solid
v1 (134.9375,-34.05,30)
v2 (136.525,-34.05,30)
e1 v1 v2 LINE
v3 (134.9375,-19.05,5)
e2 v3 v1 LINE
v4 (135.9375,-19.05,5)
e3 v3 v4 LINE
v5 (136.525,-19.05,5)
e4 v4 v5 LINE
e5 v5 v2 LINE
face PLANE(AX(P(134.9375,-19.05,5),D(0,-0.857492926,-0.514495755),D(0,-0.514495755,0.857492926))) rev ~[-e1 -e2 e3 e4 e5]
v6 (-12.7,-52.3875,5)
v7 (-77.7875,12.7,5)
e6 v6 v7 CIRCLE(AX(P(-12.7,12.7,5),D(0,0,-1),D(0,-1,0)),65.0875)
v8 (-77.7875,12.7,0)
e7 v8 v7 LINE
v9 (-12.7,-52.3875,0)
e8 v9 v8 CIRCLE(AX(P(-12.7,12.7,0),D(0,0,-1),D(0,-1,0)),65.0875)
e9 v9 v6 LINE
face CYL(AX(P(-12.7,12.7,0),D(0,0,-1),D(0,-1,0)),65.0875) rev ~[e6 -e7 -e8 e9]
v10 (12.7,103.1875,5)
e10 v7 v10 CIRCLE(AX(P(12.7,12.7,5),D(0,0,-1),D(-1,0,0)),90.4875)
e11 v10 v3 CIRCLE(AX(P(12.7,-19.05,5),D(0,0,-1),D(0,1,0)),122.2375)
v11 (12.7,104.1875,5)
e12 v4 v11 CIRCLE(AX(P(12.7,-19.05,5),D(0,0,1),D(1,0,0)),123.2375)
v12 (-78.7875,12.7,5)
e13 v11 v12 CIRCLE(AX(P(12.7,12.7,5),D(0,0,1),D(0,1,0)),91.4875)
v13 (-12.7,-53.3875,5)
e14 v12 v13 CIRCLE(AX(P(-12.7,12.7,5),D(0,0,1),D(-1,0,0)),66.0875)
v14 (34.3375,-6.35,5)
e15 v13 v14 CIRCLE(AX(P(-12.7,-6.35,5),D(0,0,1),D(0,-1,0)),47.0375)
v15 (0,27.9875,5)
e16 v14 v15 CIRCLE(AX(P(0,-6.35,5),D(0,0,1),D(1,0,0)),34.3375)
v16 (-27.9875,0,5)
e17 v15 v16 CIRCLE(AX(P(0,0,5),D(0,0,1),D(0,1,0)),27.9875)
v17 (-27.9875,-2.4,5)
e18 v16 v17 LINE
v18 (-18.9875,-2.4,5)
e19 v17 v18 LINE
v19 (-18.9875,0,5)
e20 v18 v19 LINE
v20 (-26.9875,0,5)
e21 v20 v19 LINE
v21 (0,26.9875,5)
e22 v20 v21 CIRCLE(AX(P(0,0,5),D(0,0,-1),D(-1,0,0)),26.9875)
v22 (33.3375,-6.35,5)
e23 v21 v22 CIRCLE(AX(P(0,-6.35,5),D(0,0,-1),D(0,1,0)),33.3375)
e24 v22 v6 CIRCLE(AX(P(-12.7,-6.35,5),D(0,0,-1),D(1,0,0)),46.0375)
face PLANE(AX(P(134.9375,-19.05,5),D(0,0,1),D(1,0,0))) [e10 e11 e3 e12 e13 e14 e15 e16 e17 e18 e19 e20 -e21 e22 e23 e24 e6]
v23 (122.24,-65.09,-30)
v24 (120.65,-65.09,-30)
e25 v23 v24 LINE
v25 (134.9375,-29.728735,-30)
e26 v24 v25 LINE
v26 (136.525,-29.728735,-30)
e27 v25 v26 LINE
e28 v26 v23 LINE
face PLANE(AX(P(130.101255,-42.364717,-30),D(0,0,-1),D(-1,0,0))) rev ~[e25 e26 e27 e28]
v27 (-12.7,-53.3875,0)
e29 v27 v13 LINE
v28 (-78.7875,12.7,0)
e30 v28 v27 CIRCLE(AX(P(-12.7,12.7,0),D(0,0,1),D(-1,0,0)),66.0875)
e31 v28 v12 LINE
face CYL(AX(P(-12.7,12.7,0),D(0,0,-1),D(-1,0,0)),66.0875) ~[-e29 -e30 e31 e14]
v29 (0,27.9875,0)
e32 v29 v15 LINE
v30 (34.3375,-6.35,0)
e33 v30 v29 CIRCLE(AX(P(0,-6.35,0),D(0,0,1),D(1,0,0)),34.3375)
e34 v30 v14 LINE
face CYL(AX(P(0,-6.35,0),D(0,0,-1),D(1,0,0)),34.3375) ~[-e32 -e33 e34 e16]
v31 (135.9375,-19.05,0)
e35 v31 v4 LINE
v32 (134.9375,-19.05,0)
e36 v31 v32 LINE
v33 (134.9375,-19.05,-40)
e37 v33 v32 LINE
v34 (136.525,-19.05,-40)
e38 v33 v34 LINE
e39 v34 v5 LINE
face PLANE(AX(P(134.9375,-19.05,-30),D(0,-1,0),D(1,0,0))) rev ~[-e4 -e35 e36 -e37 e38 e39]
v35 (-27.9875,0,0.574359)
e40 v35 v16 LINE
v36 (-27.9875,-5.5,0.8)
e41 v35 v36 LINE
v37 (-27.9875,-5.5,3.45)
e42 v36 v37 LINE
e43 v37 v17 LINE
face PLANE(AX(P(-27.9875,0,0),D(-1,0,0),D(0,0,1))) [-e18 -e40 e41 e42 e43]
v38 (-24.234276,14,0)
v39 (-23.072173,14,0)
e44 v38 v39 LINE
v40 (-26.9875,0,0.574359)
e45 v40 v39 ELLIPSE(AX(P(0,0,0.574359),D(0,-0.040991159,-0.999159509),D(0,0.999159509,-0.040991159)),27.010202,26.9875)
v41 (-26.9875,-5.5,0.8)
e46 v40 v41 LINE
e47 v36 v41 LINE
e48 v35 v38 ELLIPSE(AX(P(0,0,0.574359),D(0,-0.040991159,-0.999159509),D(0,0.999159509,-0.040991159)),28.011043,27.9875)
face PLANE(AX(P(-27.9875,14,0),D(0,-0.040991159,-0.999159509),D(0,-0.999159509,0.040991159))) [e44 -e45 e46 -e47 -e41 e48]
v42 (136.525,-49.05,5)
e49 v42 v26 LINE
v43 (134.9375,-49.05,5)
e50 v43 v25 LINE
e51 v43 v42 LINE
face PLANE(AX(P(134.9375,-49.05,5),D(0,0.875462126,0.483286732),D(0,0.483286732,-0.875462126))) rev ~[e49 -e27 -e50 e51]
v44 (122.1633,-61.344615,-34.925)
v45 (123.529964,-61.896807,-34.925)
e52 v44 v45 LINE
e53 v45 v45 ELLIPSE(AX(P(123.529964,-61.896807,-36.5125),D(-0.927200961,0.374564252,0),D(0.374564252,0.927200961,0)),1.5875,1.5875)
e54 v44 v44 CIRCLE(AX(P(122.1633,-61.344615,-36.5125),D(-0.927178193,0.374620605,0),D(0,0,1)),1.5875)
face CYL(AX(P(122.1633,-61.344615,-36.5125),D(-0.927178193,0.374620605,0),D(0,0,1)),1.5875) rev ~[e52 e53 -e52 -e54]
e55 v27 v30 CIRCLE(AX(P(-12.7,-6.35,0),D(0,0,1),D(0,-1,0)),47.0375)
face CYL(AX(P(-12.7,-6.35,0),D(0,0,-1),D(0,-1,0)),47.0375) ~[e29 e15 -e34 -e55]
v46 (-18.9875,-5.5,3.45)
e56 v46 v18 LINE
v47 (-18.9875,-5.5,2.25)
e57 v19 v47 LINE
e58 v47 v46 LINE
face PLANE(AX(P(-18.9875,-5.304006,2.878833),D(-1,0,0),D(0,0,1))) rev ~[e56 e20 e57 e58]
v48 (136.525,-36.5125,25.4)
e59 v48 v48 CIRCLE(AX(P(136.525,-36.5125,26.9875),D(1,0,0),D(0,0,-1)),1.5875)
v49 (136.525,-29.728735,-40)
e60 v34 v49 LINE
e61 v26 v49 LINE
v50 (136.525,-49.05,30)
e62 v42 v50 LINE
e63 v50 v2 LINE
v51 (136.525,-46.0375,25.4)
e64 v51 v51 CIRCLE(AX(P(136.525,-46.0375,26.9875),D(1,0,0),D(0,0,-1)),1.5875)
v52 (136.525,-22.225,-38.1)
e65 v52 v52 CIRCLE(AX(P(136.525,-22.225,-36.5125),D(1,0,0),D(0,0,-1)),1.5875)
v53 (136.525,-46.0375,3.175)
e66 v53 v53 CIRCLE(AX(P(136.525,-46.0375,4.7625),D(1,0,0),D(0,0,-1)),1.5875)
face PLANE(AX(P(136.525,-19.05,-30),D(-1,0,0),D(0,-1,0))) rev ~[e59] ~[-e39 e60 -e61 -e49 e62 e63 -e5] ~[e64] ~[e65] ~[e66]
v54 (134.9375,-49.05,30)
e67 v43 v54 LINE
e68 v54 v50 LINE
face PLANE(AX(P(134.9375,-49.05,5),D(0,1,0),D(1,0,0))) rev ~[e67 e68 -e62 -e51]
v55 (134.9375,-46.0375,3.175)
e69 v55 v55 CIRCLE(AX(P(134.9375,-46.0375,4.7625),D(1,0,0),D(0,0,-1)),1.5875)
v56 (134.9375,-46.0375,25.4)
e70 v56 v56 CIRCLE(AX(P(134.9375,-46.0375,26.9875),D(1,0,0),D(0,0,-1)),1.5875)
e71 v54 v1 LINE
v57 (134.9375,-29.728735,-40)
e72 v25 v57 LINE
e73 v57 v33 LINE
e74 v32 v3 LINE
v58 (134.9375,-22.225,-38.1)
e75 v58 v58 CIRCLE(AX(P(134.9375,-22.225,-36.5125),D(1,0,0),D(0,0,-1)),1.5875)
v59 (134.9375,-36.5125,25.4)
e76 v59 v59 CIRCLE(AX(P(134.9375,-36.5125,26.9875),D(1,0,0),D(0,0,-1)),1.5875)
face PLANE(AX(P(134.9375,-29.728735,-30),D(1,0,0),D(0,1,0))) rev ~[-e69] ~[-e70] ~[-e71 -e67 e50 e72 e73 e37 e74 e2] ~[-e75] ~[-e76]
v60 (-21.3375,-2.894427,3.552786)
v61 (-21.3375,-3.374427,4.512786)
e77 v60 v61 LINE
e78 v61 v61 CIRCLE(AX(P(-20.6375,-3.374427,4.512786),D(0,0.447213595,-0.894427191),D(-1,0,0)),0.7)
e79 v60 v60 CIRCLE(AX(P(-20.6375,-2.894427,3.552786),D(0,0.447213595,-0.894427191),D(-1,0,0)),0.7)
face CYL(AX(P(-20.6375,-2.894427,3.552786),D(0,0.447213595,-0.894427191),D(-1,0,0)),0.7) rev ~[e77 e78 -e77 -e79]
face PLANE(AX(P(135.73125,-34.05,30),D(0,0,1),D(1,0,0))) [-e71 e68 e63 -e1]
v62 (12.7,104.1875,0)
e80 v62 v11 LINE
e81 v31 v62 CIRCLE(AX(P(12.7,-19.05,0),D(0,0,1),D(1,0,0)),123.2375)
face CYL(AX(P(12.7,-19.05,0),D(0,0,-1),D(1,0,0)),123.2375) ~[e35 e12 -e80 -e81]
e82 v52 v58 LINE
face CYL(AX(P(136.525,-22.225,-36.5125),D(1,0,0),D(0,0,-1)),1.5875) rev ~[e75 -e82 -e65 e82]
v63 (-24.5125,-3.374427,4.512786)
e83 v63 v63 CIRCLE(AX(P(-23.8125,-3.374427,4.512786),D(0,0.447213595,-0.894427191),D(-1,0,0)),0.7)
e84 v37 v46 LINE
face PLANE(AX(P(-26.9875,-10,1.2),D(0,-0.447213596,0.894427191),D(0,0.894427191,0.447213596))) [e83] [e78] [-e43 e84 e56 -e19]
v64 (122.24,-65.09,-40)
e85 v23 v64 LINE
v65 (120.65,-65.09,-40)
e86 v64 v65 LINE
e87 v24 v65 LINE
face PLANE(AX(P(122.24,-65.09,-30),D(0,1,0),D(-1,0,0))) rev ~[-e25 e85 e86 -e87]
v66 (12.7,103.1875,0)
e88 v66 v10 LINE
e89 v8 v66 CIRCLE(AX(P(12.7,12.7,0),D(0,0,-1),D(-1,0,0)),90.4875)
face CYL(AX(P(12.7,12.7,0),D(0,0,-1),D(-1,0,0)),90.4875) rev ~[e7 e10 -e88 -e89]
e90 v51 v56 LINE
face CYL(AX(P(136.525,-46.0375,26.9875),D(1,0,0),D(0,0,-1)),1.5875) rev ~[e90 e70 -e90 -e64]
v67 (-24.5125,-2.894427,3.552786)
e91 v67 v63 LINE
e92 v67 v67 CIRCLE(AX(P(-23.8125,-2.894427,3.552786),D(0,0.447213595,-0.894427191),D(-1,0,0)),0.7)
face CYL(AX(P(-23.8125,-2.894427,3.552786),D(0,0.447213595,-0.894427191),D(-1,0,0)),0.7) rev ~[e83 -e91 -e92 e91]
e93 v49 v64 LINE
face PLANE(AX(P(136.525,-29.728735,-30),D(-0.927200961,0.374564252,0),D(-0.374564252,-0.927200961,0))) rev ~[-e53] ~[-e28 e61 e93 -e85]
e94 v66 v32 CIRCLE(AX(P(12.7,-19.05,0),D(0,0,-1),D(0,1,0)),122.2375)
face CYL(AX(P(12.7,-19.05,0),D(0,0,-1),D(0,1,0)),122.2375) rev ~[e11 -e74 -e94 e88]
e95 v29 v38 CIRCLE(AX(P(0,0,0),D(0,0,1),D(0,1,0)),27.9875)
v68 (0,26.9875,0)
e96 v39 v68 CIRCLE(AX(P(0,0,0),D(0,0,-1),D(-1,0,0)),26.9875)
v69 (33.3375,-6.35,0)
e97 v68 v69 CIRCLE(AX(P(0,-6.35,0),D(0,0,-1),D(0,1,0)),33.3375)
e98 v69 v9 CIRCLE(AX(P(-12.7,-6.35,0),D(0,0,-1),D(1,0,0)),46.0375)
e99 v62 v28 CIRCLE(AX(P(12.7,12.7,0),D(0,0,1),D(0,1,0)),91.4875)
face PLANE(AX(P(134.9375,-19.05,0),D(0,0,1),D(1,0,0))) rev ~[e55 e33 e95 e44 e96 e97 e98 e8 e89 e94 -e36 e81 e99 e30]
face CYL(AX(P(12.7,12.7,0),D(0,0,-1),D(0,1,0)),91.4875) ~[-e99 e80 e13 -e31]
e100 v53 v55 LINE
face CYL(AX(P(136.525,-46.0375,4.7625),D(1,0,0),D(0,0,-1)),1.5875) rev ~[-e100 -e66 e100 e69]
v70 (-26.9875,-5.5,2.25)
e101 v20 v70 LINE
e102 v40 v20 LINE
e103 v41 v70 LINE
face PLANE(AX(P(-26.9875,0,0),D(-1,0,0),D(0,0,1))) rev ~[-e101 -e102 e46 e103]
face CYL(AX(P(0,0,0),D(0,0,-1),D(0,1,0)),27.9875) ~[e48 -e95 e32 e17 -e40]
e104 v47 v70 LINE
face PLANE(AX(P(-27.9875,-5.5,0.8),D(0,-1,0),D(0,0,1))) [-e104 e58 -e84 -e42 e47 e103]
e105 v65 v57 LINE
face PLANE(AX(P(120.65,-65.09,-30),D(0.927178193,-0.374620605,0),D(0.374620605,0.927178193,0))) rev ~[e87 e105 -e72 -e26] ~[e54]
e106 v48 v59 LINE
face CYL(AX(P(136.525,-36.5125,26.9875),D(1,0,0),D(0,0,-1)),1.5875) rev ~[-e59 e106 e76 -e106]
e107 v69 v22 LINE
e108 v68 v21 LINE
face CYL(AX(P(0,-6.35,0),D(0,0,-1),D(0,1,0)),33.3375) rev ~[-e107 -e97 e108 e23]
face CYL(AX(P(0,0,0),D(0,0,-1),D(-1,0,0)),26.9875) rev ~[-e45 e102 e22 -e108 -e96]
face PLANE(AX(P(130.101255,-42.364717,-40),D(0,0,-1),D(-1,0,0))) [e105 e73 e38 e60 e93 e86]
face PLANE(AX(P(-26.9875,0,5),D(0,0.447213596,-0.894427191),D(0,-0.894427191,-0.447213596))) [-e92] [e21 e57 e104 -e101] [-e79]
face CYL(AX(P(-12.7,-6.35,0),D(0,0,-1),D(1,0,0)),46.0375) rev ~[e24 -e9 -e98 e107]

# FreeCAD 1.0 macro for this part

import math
import FreeCAD as App
import Part
import Sketcher
from FreeCAD import Vector
Q = App.Units.Quantity

doc = App.newDocument("Part")
body = doc.addObject("PartDesign::Body", "Body")

# Sketch on XY plane
sketch1 = body.newObject("Sketcher::SketchObject", "Sketch")
sketch1.AttachmentSupport = (doc.getObject("XY_Plane"), [""])
sketch1.MapMode = "FlatFace"
sketch1.addGeometry(Part.LineSegment(Vector(-27.9875, 0, 0), Vector(-26.9875, 0, 0)), False)
sketch1.addGeometry(Part.ArcOfCircle(Part.Circle(Vector(0, 0, 0), Vector(0, 0, 1), 26.9875), math.radians(90), math.radians(180)), False)
sketch1.addGeometry(Part.ArcOfCircle(Part.Circle(Vector(0, -6.35, 0), Vector(0, 0, 1), 33.3375), math.radians(0), math.radians(90)), False)
sketch1.addGeometry(Part.ArcOfCircle(Part.Circle(Vector(-12.7, -6.35, 0), Vector(0, 0, 1), 46.0375), math.radians(-90), math.radians(0)), False)
sketch1.addGeometry(Part.ArcOfCircle(Part.Circle(Vector(-12.7, 12.7, 0), Vector(0, 0, 1), 65.0875), math.radians(-180), math.radians(-90)), False)
sketch1.addGeometry(Part.ArcOfCircle(Part.Circle(Vector(12.7, 12.7, 0), Vector(0, 0, 1), 90.4875), math.radians(90), math.radians(180)), False)
sketch1.addGeometry(Part.ArcOfCircle(Part.Circle(Vector(12.7, -19.05, 0), Vector(0, 0, 1), 122.2375), math.radians(0), math.radians(90)), False)
sketch1.addGeometry(Part.LineSegment(Vector(134.9375, -19.05, 0), Vector(135.9375, -19.05, 0)), False)
sketch1.addGeometry(Part.ArcOfCircle(Part.Circle(Vector(12.7, -19.05, 0), Vector(0, 0, 1), 123.2375), math.radians(0), math.radians(90)), False)
sketch1.addGeometry(Part.ArcOfCircle(Part.Circle(Vector(12.7, 12.7, 0), Vector(0, 0, 1), 91.4875), math.radians(90), math.radians(180)), False)
sketch1.addGeometry(Part.ArcOfCircle(Part.Circle(Vector(-12.7, 12.7, 0), Vector(0, 0, 1), 66.0875), math.radians(180), math.radians(270)), False)
sketch1.addGeometry(Part.ArcOfCircle(Part.Circle(Vector(-12.7, -6.35, 0), Vector(0, 0, 1), 47.0375), math.radians(-90), math.radians(0)), False)
sketch1.addGeometry(Part.ArcOfCircle(Part.Circle(Vector(0, -6.35, 0), Vector(0, 0, 1), 34.3375), math.radians(0), math.radians(90)), False)
sketch1.addGeometry(Part.ArcOfCircle(Part.Circle(Vector(0, 0, 0), Vector(0, 0, 1), 27.9875), math.radians(90), math.radians(180)), False)
sketch1.addConstraint(Sketcher.Constraint("Coincident", 0, 2, 1, 2))
sketch1.addConstraint(Sketcher.Constraint("Tangent", 1, 1, 2, 2))
sketch1.addConstraint(Sketcher.Constraint("Tangent", 2, 1, 3, 2))
sketch1.addConstraint(Sketcher.Constraint("Tangent", 3, 1, 4, 2))
sketch1.addConstraint(Sketcher.Constraint("Tangent", 4, 1, 5, 2))
sketch1.addConstraint(Sketcher.Constraint("Tangent", 5, 1, 6, 2))
sketch1.addConstraint(Sketcher.Constraint("Coincident", 6, 1, 7, 1))
sketch1.addConstraint(Sketcher.Constraint("Coincident", 7, 2, 8, 1))
sketch1.addConstraint(Sketcher.Constraint("Tangent", 8, 2, 9, 1))
sketch1.addConstraint(Sketcher.Constraint("Tangent", 9, 2, 10, 1))
sketch1.addConstraint(Sketcher.Constraint("Tangent", 10, 2, 11, 1))
sketch1.addConstraint(Sketcher.Constraint("Tangent", 11, 2, 12, 1))
sketch1.addConstraint(Sketcher.Constraint("Tangent", 12, 2, 13, 1))
sketch1.addConstraint(Sketcher.Constraint("Coincident", 13, 2, 0, 1))
sketch1.addConstraint(Sketcher.Constraint("Horizontal", 0))
sketch1.addConstraint(Sketcher.Constraint("Horizontal", 7))
sketch1.addConstraint(Sketcher.Constraint("Coincident", 1, 3, -1, 1))
sketch1.addConstraint(Sketcher.Constraint("Coincident", 13, 3, -1, 1))
sketch1.addConstraint(Sketcher.Constraint("Coincident", 8, 3, 6, 3))
sketch1.addConstraint(Sketcher.Constraint("Coincident", 9, 3, 5, 3))
sketch1.addConstraint(Sketcher.Constraint("Coincident", 10, 3, 4, 3))
sketch1.addConstraint(Sketcher.Constraint("Coincident", 11, 3, 3, 3))
sketch1.addConstraint(Sketcher.Constraint("Coincident", 12, 3, 2, 3))
sketch1.addConstraint(Sketcher.Constraint("Symmetric", 4, 3, 5, 3, -2))
sketch1.addConstraint(Sketcher.Constraint("PointOnObject", 2, 3, -2))
sketch1.addConstraint(Sketcher.Constraint("PointOnObject", 0, 2, -1))
sketch1.addConstraint(Sketcher.Constraint("Horizontal", 2, 3, 3, 3))
sketch1.addConstraint(Sketcher.Constraint("Horizontal", 8, 3, 6, 1))
sketch1.addConstraint(Sketcher.Constraint("Vertical", 3, 3, 4, 3))
sketch1.addConstraint(Sketcher.Constraint("Vertical", 5, 3, 6, 3))
sketch1.addConstraint(Sketcher.Constraint("DistanceX", 0, 1, 0, 2, Q("1 mm")))
sketch1.addConstraint(Sketcher.Constraint("DistanceX", 3, 3, -1, 1, Q("12.7 mm")))
sketch1.addConstraint(Sketcher.Constraint("DistanceY", -1, 1, 4, 3, Q("12.7 mm")))
sketch1.addConstraint(Sketcher.Constraint("Radius", 1, Q("26.9875 mm")))
sketch1.addConstraint(Sketcher.Constraint("Radius", 2, Q("33.3375 mm")))
sketch1.addConstraint(Sketcher.Constraint("Radius", 6, Q("122.2375 mm")))
pad1 = body.newObject("PartDesign::Pad", "Pad")
pad1.Profile = sketch1
pad1.Length = 5

# Sketch on XZ plane
sketch2 = body.newObject("Sketcher::SketchObject", "Sketch001")
sketch2.AttachmentSupport = (doc.getObject("XZ_Plane"), [""])
sketch2.MapMode = "FlatFace"
sketch2.addGeometry(Part.LineSegment(Vector(-27.9875, 5, 0), Vector(-27.9875, 0, 0)), False)
sketch2.addGeometry(Part.LineSegment(Vector(-27.9875, 0, 0), Vector(-26.9875, 0, 0)), False)
sketch2.addGeometry(Part.LineSegment(Vector(-26.9875, 0, 0), Vector(-26.9875, 5, 0)), False)
sketch2.addGeometry(Part.LineSegment(Vector(-26.9875, 5, 0), Vector(-27.9875, 5, 0)), False)
sketch2.addConstraint(Sketcher.Constraint("Coincident", 0, 2, 1, 1))
sketch2.addConstraint(Sketcher.Constraint("Coincident", 1, 2, 2, 1))
sketch2.addConstraint(Sketcher.Constraint("Coincident", 2, 2, 3, 1))
sketch2.addConstraint(Sketcher.Constraint("Coincident", 3, 2, 0, 1))
sketch2.addConstraint(Sketcher.Constraint("Vertical", 0))
sketch2.addConstraint(Sketcher.Constraint("Horizontal", 1))
sketch2.addConstraint(Sketcher.Constraint("Vertical", 2))
sketch2.addConstraint(Sketcher.Constraint("Horizontal", 3))
sketch2.addConstraint(Sketcher.Constraint("PointOnObject", 0, 2, -1))
sketch2.addConstraint(Sketcher.Constraint("DistanceX", 1, 1, 1, 2, Q("1 mm")))
sketch2.addConstraint(Sketcher.Constraint("DistanceY", 0, 2, 0, 1, Q("5 mm")))
sketch2.addConstraint(Sketcher.Constraint("DistanceX", 0, 2, -1, 1, Q("27.9875 mm")))
pad2 = body.newObject("PartDesign::Pad", "Pad001")
pad2.Profile = sketch2
pad2.Length = 10

# Sketch on YZ plane
sketch3 = body.newObject("Sketcher::SketchObject", "Sketch002")
sketch3.AttachmentSupport = (doc.getObject("YZ_Plane"), [""])
sketch3.MapMode = "FlatFace"
sketch3.AttachmentOffset = App.Placement(Vector(0, 0, -26.9875), App.Rotation())
sketch3.addGeometry(Part.LineSegment(Vector(-10, 1.2, 0), Vector(-2.4, 5, 0)), False)
sketch3.addGeometry(Part.LineSegment(Vector(-2.4, 5, 0), Vector(-10, 5, 0)), False)
sketch3.addGeometry(Part.LineSegment(Vector(-10, 5, 0), Vector(-10, 1.2, 0)), False)
sketch3.addConstraint(Sketcher.Constraint("Coincident", 0, 2, 1, 1))
sketch3.addConstraint(Sketcher.Constraint("Coincident", 1, 2, 2, 1))
sketch3.addConstraint(Sketcher.Constraint("Coincident", 2, 2, 0, 1))
sketch3.addConstraint(Sketcher.Constraint("Horizontal", 1))
sketch3.addConstraint(Sketcher.Constraint("Vertical", 2))
sketch3.addConstraint(Sketcher.Constraint("DistanceX", 1, 2, 1, 1, Q("7.6 mm")))
sketch3.addConstraint(Sketcher.Constraint("DistanceY", 2, 2, 2, 1, Q("3.8 mm")))
sketch3.addConstraint(Sketcher.Constraint("DistanceY", -1, 1, 0, 2, Q("5 mm")))
sketch3.addConstraint(Sketcher.Constraint("DistanceX", 1, 2, -1, 1, Q("10 mm")))
pocket1 = body.newObject("PartDesign::Pocket", "Pocket")
pocket1.Profile = sketch3
pocket1.Length = 5

# Sketch on YZ plane
sketch4 = body.newObject("Sketcher::SketchObject", "Sketch003")
sketch4.AttachmentSupport = (doc.getObject("YZ_Plane"), [""])
sketch4.MapMode = "FlatFace"
sketch4.AttachmentOffset = App.Placement(Vector(0, 0, -26.9875), App.Rotation())
sketch4.addGeometry(Part.LineSegment(Vector(-10, 0, 0), Vector(0, 5, 0)), False)
sketch4.addGeometry(Part.LineSegment(Vector(0, 5, 0), Vector(-2.4, 5, 0)), False)
sketch4.addGeometry(Part.LineSegment(Vector(-2.4, 5, 0), Vector(-10, 1.2, 0)), False)
sketch4.addGeometry(Part.LineSegment(Vector(-10, 1.2, 0), Vector(-10, 0, 0)), False)
sketch4.addConstraint(Sketcher.Constraint("Coincident", 0, 2, 1, 1))
sketch4.addConstraint(Sketcher.Constraint("Coincident", 1, 2, 2, 1))
sketch4.addConstraint(Sketcher.Constraint("Coincident", 2, 2, 3, 1))
sketch4.addConstraint(Sketcher.Constraint("Coincident", 3, 2, 0, 1))
sketch4.addConstraint(Sketcher.Constraint("Horizontal", 1))
sketch4.addConstraint(Sketcher.Constraint("Vertical", 3))
sketch4.addConstraint(Sketcher.Constraint("PointOnObject", 0, 2, -2))
sketch4.addConstraint(Sketcher.Constraint("PointOnObject", 3, 2, -1))
sketch4.addConstraint(Sketcher.Constraint("Parallel", 0, 2))
sketch4.addConstraint(Sketcher.Constraint("DistanceX", 1, 2, 1, 1, Q("2.4 mm")))
sketch4.addConstraint(Sketcher.Constraint("DistanceY", 3, 2, 3, 1, Q("1.2 mm")))
sketch4.addConstraint(Sketcher.Constraint("DistanceY", -1, 1, 0, 2, Q("5 mm")))
pad3 = body.newObject("PartDesign::Pad", "Pad002")
pad3.Profile = sketch4
pad3.Length = 8

# Sketch on XZ plane
sketch5 = body.newObject("Sketcher::SketchObject", "Sketch004")
sketch5.AttachmentSupport = (doc.getObject("XZ_Plane"), [""])
sketch5.MapMode = "FlatFace"
sketch5.AttachmentOffset = App.Placement(Vector(0, 0, 19.05), App.Rotation())
sketch5.addGeometry(Part.LineSegment(Vector(134.9375, 5, 0), Vector(134.9375, 0, 0)), False)
sketch5.addGeometry(Part.LineSegment(Vector(134.9375, 0, 0), Vector(136.525, 0, 0)), False)
sketch5.addGeometry(Part.LineSegment(Vector(136.525, 0, 0), Vector(136.525, 5, 0)), False)
sketch5.addGeometry(Part.LineSegment(Vector(136.525, 5, 0), Vector(134.9375, 5, 0)), False)
sketch5.addConstraint(Sketcher.Constraint("Coincident", 0, 2, 1, 1))
sketch5.addConstraint(Sketcher.Constraint("Coincident", 1, 2, 2, 1))
sketch5.addConstraint(Sketcher.Constraint("Coincident", 2, 2, 3, 1))
sketch5.addConstraint(Sketcher.Constraint("Coincident", 3, 2, 0, 1))
sketch5.addConstraint(Sketcher.Constraint("Vertical", 0))
sketch5.addConstraint(Sketcher.Constraint("Horizontal", 1))
sketch5.addConstraint(Sketcher.Constraint("Vertical", 2))
sketch5.addConstraint(Sketcher.Constraint("Horizontal", 3))
sketch5.addConstraint(Sketcher.Constraint("PointOnObject", 0, 2, -1))
sketch5.addConstraint(Sketcher.Constraint("DistanceY", 0, 2, 0, 1, Q("5 mm")))
sketch5.addConstraint(Sketcher.Constraint("DistanceX", 1, 1, 1, 2, Q("1.5875 mm")))
sketch5.addConstraint(Sketcher.Constraint("DistanceX", -1, 1, 1, 2, Q("136.525 mm")))
pad4 = body.newObject("PartDesign::Pad", "Pad003")
pad4.Profile = sketch5
pad4.Length = 30

# Sketch on XY plane
sketch6 = body.newObject("Sketcher::SketchObject", "Sketch005")
sketch6.AttachmentSupport = (doc.getObject("XY_Plane"), [""])
sketch6.MapMode = "FlatFace"
sketch6.addGeometry(Part.LineSegment(Vector(136.525, -19.05, 0), Vector(136.525, -49.05, 0)), False)
sketch6.addGeometry(Part.LineSegment(Vector(136.525, -49.05, 0), Vector(134.9375, -49.05, 0)), False)
sketch6.addGeometry(Part.LineSegment(Vector(134.9375, -49.05, 0), Vector(134.9375, -19.05, 0)), False)
sketch6.addGeometry(Part.LineSegment(Vector(134.9375, -19.05, 0), Vector(136.525, -19.05, 0)), False)
sketch6.addConstraint(Sketcher.Constraint("Coincident", 0, 2, 1, 1))
sketch6.addConstraint(Sketcher.Constraint("Coincident", 1, 2, 2, 1))
sketch6.addConstraint(Sketcher.Constraint("Coincident", 2, 2, 3, 1))
sketch6.addConstraint(Sketcher.Constraint("Coincident", 3, 2, 0, 1))
sketch6.addConstraint(Sketcher.Constraint("Vertical", 0))
sketch6.addConstraint(Sketcher.Constraint("Horizontal", 1))
sketch6.addConstraint(Sketcher.Constraint("Vertical", 2))
sketch6.addConstraint(Sketcher.Constraint("Horizontal", 3))
sketch6.addConstraint(Sketcher.Constraint("DistanceY", 0, 2, 0, 1, Q("30 mm")))
sketch6.addConstraint(Sketcher.Constraint("DistanceY", 0, 2, -1, 1, Q("49.05 mm")))
sketch6.addConstraint(Sketcher.Constraint("DistanceX", 1, 2, 1, 1, Q("1.5875 mm")))
sketch6.addConstraint(Sketcher.Constraint("DistanceX", -1, 1, 0, 2, Q("136.525 mm")))
pad5 = body.newObject("PartDesign::Pad", "Pad004")
pad5.Profile = sketch6
pad5.Length = 30
pad5.Reversed = True

# Sketch on XY plane
sketch7 = body.newObject("Sketcher::SketchObject", "Sketch006")
sketch7.AttachmentSupport = (doc.getObject("XY_Plane"), [""])
sketch7.MapMode = "FlatFace"
sketch7.AttachmentOffset = App.Placement(Vector(0, 0, 5), App.Rotation())
sketch7.addGeometry(Part.LineSegment(Vector(134.9375, -19.05, 0), Vector(134.9375, -49.05, 0)), False)
sketch7.addGeometry(Part.LineSegment(Vector(134.9375, -49.05, 0), Vector(136.525, -49.05, 0)), False)
sketch7.addGeometry(Part.LineSegment(Vector(136.525, -49.05, 0), Vector(136.525, -19.05, 0)), False)
sketch7.addGeometry(Part.LineSegment(Vector(136.525, -19.05, 0), Vector(134.9375, -19.05, 0)), False)
sketch7.addConstraint(Sketcher.Constraint("Coincident", 0, 2, 1, 1))
sketch7.addConstraint(Sketcher.Constraint("Coincident", 1, 2, 2, 1))
sketch7.addConstraint(Sketcher.Constraint("Coincident", 2, 2, 3, 1))
sketch7.addConstraint(Sketcher.Constraint("Coincident", 3, 2, 0, 1))
sketch7.addConstraint(Sketcher.Constraint("Vertical", 0))
sketch7.addConstraint(Sketcher.Constraint("Horizontal", 1))
sketch7.addConstraint(Sketcher.Constraint("Vertical", 2))
sketch7.addConstraint(Sketcher.Constraint("Horizontal", 3))
sketch7.addConstraint(Sketcher.Constraint("DistanceY", 0, 2, 0, 1, Q("30 mm")))
sketch7.addConstraint(Sketcher.Constraint("DistanceY", 0, 2, -1, 1, Q("49.05 mm")))
sketch7.addConstraint(Sketcher.Constraint("DistanceX", 1, 1, 1, 2, Q("1.5875 mm")))
sketch7.addConstraint(Sketcher.Constraint("DistanceX", -1, 1, 1, 2, Q("136.525 mm")))
pad6 = body.newObject("PartDesign::Pad", "Pad005")
pad6.Profile = sketch7
pad6.Length = 25

# Sketch on YZ plane
sketch8 = body.newObject("Sketcher::SketchObject", "Sketch007")
sketch8.AttachmentSupport = (doc.getObject("YZ_Plane"), [""])
sketch8.MapMode = "FlatFace"
sketch8.AttachmentOffset = App.Placement(Vector(0, 0, 134.9375), App.Rotation())
sketch8.addGeometry(Part.LineSegment(Vector(-19.05, 5, 0), Vector(-34.05, 30, 0)), False)
sketch8.addGeometry(Part.LineSegment(Vector(-34.05, 30, 0), Vector(-19.05, 30, 0)), False)
sketch8.addGeometry(Part.LineSegment(Vector(-19.05, 30, 0), Vector(-19.05, 5, 0)), False)
sketch8.addConstraint(Sketcher.Constraint("Coincident", 0, 2, 1, 1))
sketch8.addConstraint(Sketcher.Constraint("Coincident", 1, 2, 2, 1))
sketch8.addConstraint(Sketcher.Constraint("Coincident", 2, 2, 0, 1))
sketch8.addConstraint(Sketcher.Constraint("Horizontal", 1))
sketch8.addConstraint(Sketcher.Constraint("Vertical", 2))
sketch8.addConstraint(Sketcher.Constraint("DistanceX", 1, 1, 1, 2, Q("15 mm")))
sketch8.addConstraint(Sketcher.Constraint("DistanceY", 2, 2, 2, 1, Q("25 mm")))
sketch8.addConstraint(Sketcher.Constraint("DistanceY", -1, 1, 0, 2, Q("30 mm")))
sketch8.addConstraint(Sketcher.Constraint("DistanceX", 0, 2, -1, 1, Q("34.05 mm")))
pocket2 = body.newObject("PartDesign::Pocket", "Pocket001")
pocket2.Profile = sketch8
pocket2.Length = 5
pocket2.Reversed = True

# Sketch on YZ plane
sketch9 = body.newObject("Sketcher::SketchObject", "Sketch008")
sketch9.AttachmentSupport = (doc.getObject("YZ_Plane"), [""])
sketch9.MapMode = "FlatFace"
sketch9.AttachmentOffset = App.Placement(Vector(0, 0, 134.9375), App.Rotation())
sketch9.addGeometry(Part.LineSegment(Vector(-49.05, 5, 0), Vector(-29.728735, -30, 0)), False)
sketch9.addGeometry(Part.LineSegment(Vector(-29.728735, -30, 0), Vector(-49.05, -30, 0)), False)
sketch9.addGeometry(Part.LineSegment(Vector(-49.05, -30, 0), Vector(-49.05, 5, 0)), False)
sketch9.addConstraint(Sketcher.Constraint("Coincident", 0, 2, 1, 1))
sketch9.addConstraint(Sketcher.Constraint("Coincident", 1, 2, 2, 1))
sketch9.addConstraint(Sketcher.Constraint("Coincident", 2, 2, 0, 1))
sketch9.addConstraint(Sketcher.Constraint("Horizontal", 1))
sketch9.addConstraint(Sketcher.Constraint("Vertical", 2))
sketch9.addConstraint(Sketcher.Constraint("DistanceY", 2, 1, 2, 2, Q("35 mm")))
sketch9.addConstraint(Sketcher.Constraint("DistanceY", 0, 2, -1, 1, Q("30 mm")))
sketch9.addConstraint(Sketcher.Constraint("DistanceX", 1, 2, -1, 1, Q("49.05 mm")))
sketch9.addConstraint(Sketcher.Constraint("DistanceX", 1, 2, 1, 1, Q("19.321265 mm")))
pocket3 = body.newObject("PartDesign::Pocket", "Pocket002")
pocket3.Profile = sketch9
pocket3.Length = 5
pocket3.Reversed = True

# Sketch on YZ plane
sketch10 = body.newObject("Sketcher::SketchObject", "Sketch009")
sketch10.AttachmentSupport = (doc.getObject("YZ_Plane"), [""])
sketch10.MapMode = "FlatFace"
sketch10.AttachmentOffset = App.Placement(Vector(0, 0, -27.9875), App.Rotation())
sketch10.addGeometry(Part.LineSegment(Vector(14, 0, 0), Vector(-10, 0, 0)), False)
sketch10.addGeometry(Part.LineSegment(Vector(-10, 0, 0), Vector(-10, 4.7625, 0)), False)
sketch10.addGeometry(Part.LineSegment(Vector(-10, 4.7625, 0), Vector(-5.5, 4.7625, 0)), False)
sketch10.addGeometry(Part.LineSegment(Vector(-5.5, 4.7625, 0), Vector(-5.5, 0.8, 0)), False)
sketch10.addGeometry(Part.LineSegment(Vector(-5.5, 0.8, 0), Vector(14, 0, 0)), False)
sketch10.addConstraint(Sketcher.Constraint("Coincident", 0, 2, 1, 1))
sketch10.addConstraint(Sketcher.Constraint("Coincident", 1, 2, 2, 1))
sketch10.addConstraint(Sketcher.Constraint("Coincident", 2, 2, 3, 1))
sketch10.addConstraint(Sketcher.Constraint("Coincident", 3, 2, 4, 1))
sketch10.addConstraint(Sketcher.Constraint("Coincident", 4, 2, 0, 1))
sketch10.addConstraint(Sketcher.Constraint("Horizontal", 0))
sketch10.addConstraint(Sketcher.Constraint("Vertical", 1))
sketch10.addConstraint(Sketcher.Constraint("Horizontal", 2))
sketch10.addConstraint(Sketcher.Constraint("Vertical", 3))
sketch10.addConstraint(Sketcher.Constraint("PointOnObject", 0, 2, -1))
sketch10.addConstraint(Sketcher.Constraint("DistanceX", 0, 2, 0, 1, Q("24 mm")))
sketch10.addConstraint(Sketcher.Constraint("DistanceX", 2, 1, 2, 2, Q("4.5 mm")))
sketch10.addConstraint(Sketcher.Constraint("DistanceX", 0, 2, -1, 1, Q("10 mm")))
sketch10.addConstraint(Sketcher.Constraint("DistanceY", -1, 1, 3, 2, Q("0.8 mm")))
sketch10.addConstraint(Sketcher.Constraint("DistanceY", 1, 1, 1, 2, Q("4.7625 mm")))
pocket4 = body.newObject("PartDesign::Pocket", "Pocket003")
pocket4.Profile = sketch10
pocket4.Length = 15
pocket4.Reversed = True

# Sketch on an angled plane
sketch11 = body.newObject("Sketcher::SketchObject", "Sketch010")
sketch11.Placement = App.Placement(Vector(0, -2, 4), App.Rotation(Vector(-1, 0, 0), Vector(0, 0.894427191, 0.447213595), Vector(0, 0.447213595, -0.894427191), "ZXY"))
sketch11.addGeometry(Part.Circle(Vector(23.8125, -1, 0), Vector(0, 0, 1), 0.7), False)
sketch11.addGeometry(Part.Circle(Vector(20.6375, -1, 0), Vector(0, 0, 1), 0.7), False)
sketch11.addConstraint(Sketcher.Constraint("Equal", 0, 1))
sketch11.addConstraint(Sketcher.Constraint("Horizontal", 0, 3, 1, 3))
sketch11.addConstraint(Sketcher.Constraint("Diameter", 0, Q("1.4 mm")))
sketch11.addConstraint(Sketcher.Constraint("DistanceY", 0, 3, -1, 1, Q("1 mm")))
sketch11.addConstraint(Sketcher.Constraint("DistanceX", 1, 3, 0, 3, Q("3.175 mm")))
sketch11.addConstraint(Sketcher.Constraint("DistanceX", -1, 1, 0, 3, Q("23.8125 mm")))
pocket5 = body.newObject("PartDesign::Pocket", "Pocket004")
pocket5.Profile = sketch11
pocket5.Length = 10

# Sketch on XY plane
sketch12 = body.newObject("Sketcher::SketchObject", "Sketch011")
sketch12.AttachmentSupport = (doc.getObject("XY_Plane"), [""])
sketch12.MapMode = "FlatFace"
sketch12.AttachmentOffset = App.Placement(Vector(0, 0, -30), App.Rotation())
sketch12.addGeometry(Part.LineSegment(Vector(136.525, -19.05, 0), Vector(136.525, -29.728735, 0)), False)
sketch12.addGeometry(Part.LineSegment(Vector(136.525, -29.728735, 0), Vector(122.24, -65.09, 0)), False)
sketch12.addGeometry(Part.LineSegment(Vector(122.24, -65.09, 0), Vector(120.65, -65.09, 0)), False)
sketch12.addGeometry(Part.LineSegment(Vector(120.65, -65.09, 0), Vector(134.9375, -29.728735, 0)), False)
sketch12.addGeometry(Part.LineSegment(Vector(134.9375, -29.728735, 0), Vector(134.9375, -19.05, 0)), False)
sketch12.addGeometry(Part.LineSegment(Vector(134.9375, -19.05, 0), Vector(136.525, -19.05, 0)), False)
sketch12.addConstraint(Sketcher.Constraint("Coincident", 0, 2, 1, 1))
sketch12.addConstraint(Sketcher.Constraint("Coincident", 1, 2, 2, 1))
sketch12.addConstraint(Sketcher.Constraint("Coincident", 2, 2, 3, 1))
sketch12.addConstraint(Sketcher.Constraint("Coincident", 3, 2, 4, 1))
sketch12.addConstraint(Sketcher.Constraint("Coincident", 4, 2, 5, 1))
sketch12.addConstraint(Sketcher.Constraint("Coincident", 5, 2, 0, 1))
sketch12.addConstraint(Sketcher.Constraint("Vertical", 0))
sketch12.addConstraint(Sketcher.Constraint("Horizontal", 2))
sketch12.addConstraint(Sketcher.Constraint("Vertical", 4))
sketch12.addConstraint(Sketcher.Constraint("Horizontal", 5))
sketch12.addConstraint(Sketcher.Constraint("Horizontal", 0, 2, 3, 2))
sketch12.addConstraint(Sketcher.Constraint("DistanceX", 2, 2, 2, 1, Q("1.59 mm")))
sketch12.addConstraint(Sketcher.Constraint("DistanceX", -1, 1, 1, 2, Q("122.24 mm")))
sketch12.addConstraint(Sketcher.Constraint("DistanceY", 1, 2, -1, 1, Q("65.09 mm")))
sketch12.addConstraint(Sketcher.Constraint("DistanceY", 4, 2, -1, 1, Q("19.05 mm")))
sketch12.addConstraint(Sketcher.Constraint("DistanceX", 5, 1, 5, 2, Q("1.5875 mm")))
sketch12.addConstraint(Sketcher.Constraint("DistanceX", -1, 1, 0, 2, Q("136.525 mm")))
sketch12.addConstraint(Sketcher.Constraint("Distance", 1, Q("38.137649 mm")))
pad7 = body.newObject("PartDesign::Pad", "Pad006")
pad7.Profile = sketch12
pad7.Length = 10
pad7.Reversed = True

# Sketch on an angled plane
sketch13 = body.newObject("Sketcher::SketchObject", "Sketch012")
sketch13.Placement = App.Placement(Vector(126.326271, -51.041347, 0), App.Rotation(Vector(0, 0, 1), Vector(0.374620605, 0.927178193, 0), Vector(-0.927178193, 0.374620605, 0), "ZXY"))
sketch13.addGeometry(Part.Circle(Vector(-36.5125, -11.1125, 0), Vector(0, 0, 1), 1.5875), False)
sketch13.addConstraint(Sketcher.Constraint("Diameter", 0, Q("3.175 mm")))
sketch13.addConstraint(Sketcher.Constraint("DistanceX", 0, 3, -1, 1, Q("36.5125 mm")))
sketch13.addConstraint(Sketcher.Constraint("DistanceY", 0, 3, -1, 1, Q("11.1125 mm")))
pocket6 = body.newObject("PartDesign::Pocket", "Pocket005")
pocket6.Profile = sketch13
pocket6.Length = 3

# Sketch on YZ plane
sketch14 = body.newObject("Sketcher::SketchObject", "Sketch013")
sketch14.AttachmentSupport = (doc.getObject("YZ_Plane"), [""])
sketch14.MapMode = "FlatFace"
sketch14.AttachmentOffset = App.Placement(Vector(0, 0, 136.525), App.Rotation())
sketch14.addGeometry(Part.Circle(Vector(-46.0375, 26.9875, 0), Vector(0, 0, 1), 1.5875), False)
sketch14.addGeometry(Part.Circle(Vector(-36.5125, 26.9875, 0), Vector(0, 0, 1), 1.5875), False)
sketch14.addGeometry(Part.Circle(Vector(-46.0375, 4.7625, 0), Vector(0, 0, 1), 1.5875), False)
sketch14.addGeometry(Part.Circle(Vector(-22.225, -36.5125, 0), Vector(0, 0, 1), 1.5875), False)
sketch14.addConstraint(Sketcher.Constraint("Equal", 0, 1))
sketch14.addConstraint(Sketcher.Constraint("Equal", 1, 2))
sketch14.addConstraint(Sketcher.Constraint("Equal", 2, 3))
sketch14.addConstraint(Sketcher.Constraint("Horizontal", 0, 3, 1, 3))
sketch14.addConstraint(Sketcher.Constraint("Vertical", 0, 3, 2, 3))
sketch14.addConstraint(Sketcher.Constraint("Diameter", 0, Q("3.175 mm")))
sketch14.addConstraint(Sketcher.Constraint("DistanceY", 3, 3, 1, 3, Q("63.5 mm")))
sketch14.addConstraint(Sketcher.Constraint("DistanceX", 3, 3, -1, 1, Q("22.225 mm")))
sketch14.addConstraint(Sketcher.Constraint("DistanceX", 0, 3, 1, 3, Q("9.525 mm")))
sketch14.addConstraint(Sketcher.Constraint("DistanceY", 2, 3, 0, 3, Q("22.225 mm")))
sketch14.addConstraint(Sketcher.Constraint("DistanceX", 0, 3, -1, 1, Q("46.0375 mm")))
sketch14.addConstraint(Sketcher.Constraint("DistanceY", -1, 1, 0, 3, Q("26.9875 mm")))
pocket7 = body.newObject("PartDesign::Pocket", "Pocket006")
pocket7.Profile = sketch14
pocket7.Length = 3

doc.recompute()
